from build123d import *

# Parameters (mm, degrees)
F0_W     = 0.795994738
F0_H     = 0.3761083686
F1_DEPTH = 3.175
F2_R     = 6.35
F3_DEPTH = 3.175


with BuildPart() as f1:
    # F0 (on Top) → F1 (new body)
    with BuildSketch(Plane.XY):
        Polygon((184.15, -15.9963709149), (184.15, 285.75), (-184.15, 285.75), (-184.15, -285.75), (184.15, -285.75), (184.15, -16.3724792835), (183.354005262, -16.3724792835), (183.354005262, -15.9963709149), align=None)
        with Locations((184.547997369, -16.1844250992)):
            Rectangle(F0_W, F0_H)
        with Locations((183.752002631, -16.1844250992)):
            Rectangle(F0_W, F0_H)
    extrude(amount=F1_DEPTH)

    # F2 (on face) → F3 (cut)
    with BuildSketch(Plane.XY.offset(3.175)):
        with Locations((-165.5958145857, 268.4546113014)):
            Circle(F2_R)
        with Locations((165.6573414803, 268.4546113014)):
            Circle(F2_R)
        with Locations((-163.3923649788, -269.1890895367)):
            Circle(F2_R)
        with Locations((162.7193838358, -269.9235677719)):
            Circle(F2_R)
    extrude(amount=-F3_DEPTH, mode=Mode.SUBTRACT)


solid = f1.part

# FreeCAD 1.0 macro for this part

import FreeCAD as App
import Part
import Sketcher

V = App.Vector
Q = App.Units.Quantity

doc = App.newDocument("Part")
body = doc.addObject("PartDesign::Body", "Body")

# Sketch on XY plane
sketch1 = doc.addObject("Sketcher::SketchObject", "Sketch")
body.addObject(sketch1)
sketch1.AttachmentSupport = (doc.XY_Plane, [""])
sketch1.MapMode = "FlatFace"
sketch1.addGeometry([
    Part.LineSegment(V(184.15, -16, 0), V(184.15, 285.75, 0)),  # 0
    Part.LineSegment(V(184.15, 285.75, 0), V(-184.15, 285.75, 0)),  # 1
    Part.LineSegment(V(-184.15, 285.75, 0), V(-184.15, -285.75, 0)),  # 2
    Part.LineSegment(V(-184.15, -285.75, 0), V(184.15, -285.75, 0)),  # 3
    Part.LineSegment(V(184.15, -285.75, 0), V(184.15, -16.37, 0)),  # 4
    Part.LineSegment(V(184.15, -16.37, 0), V(184.95, -16.37, 0)),  # 5
    Part.LineSegment(V(184.95, -16.37, 0), V(184.95, -16, 0)),  # 6
    Part.LineSegment(V(184.95, -16, 0), V(184.15, -16, 0)),  # 7
], False)
sketch1.addConstraint([
    Sketcher.Constraint("Coincident", 0, 2, 1, 1),
    Sketcher.Constraint("Coincident", 1, 2, 2, 1),
    Sketcher.Constraint("Coincident", 2, 2, 3, 1),
    Sketcher.Constraint("Coincident", 3, 2, 4, 1),
    Sketcher.Constraint("Coincident", 4, 2, 5, 1),
    Sketcher.Constraint("Coincident", 5, 2, 6, 1),
    Sketcher.Constraint("Coincident", 6, 2, 7, 1),
    Sketcher.Constraint("Coincident", 7, 2, 0, 1),
    Sketcher.Constraint("Vertical", 0),
    Sketcher.Constraint("Horizontal", 1),
    Sketcher.Constraint("Vertical", 2),
    Sketcher.Constraint("Horizontal", 3),
    Sketcher.Constraint("Vertical", 4),
    Sketcher.Constraint("Horizontal", 5),
    Sketcher.Constraint("Vertical", 6),
    Sketcher.Constraint("Horizontal", 7),
    Sketcher.Constraint("Symmetric", 0, 2, 2, 2, -1, 1),
    Sketcher.Constraint("Vertical", 0, 2, 3, 2),
    Sketcher.Constraint("DistanceX", 1, 2, 1, 1, Q("14.5 in")),
    Sketcher.Constraint("DistanceY", 2, 2, 2, 1, Q("22.5 in")),
    Sketcher.Constraint("DistanceY", 0, 1, 0, 2, 301.746371),
    Sketcher.Constraint("DistanceY", 4, 1, 4, 2, 269.377521),
    Sketcher.Constraint("DistanceX", 5, 1, 5, 2, 0.795995),
])
pad1 = doc.addObject("PartDesign::Pad", "Pad")
body.addObject(pad1)
pad1.Profile = sketch1
pad1.Length = Q("0.125 in")

# Sketch on XY plane
sketch2 = doc.addObject("Sketcher::SketchObject", "Sketch001")
body.addObject(sketch2)
sketch2.AttachmentSupport = (doc.XY_Plane, [""])
sketch2.MapMode = "FlatFace"
sketch2.AttachmentOffset = App.Placement(V(0, 0, 0.125 * 25.4), App.Rotation())
sketch2.addGeometry([
    Part.Circle(V(-166, 268, 0), V(0, 0, 1), 6),
    Part.Circle(V(166, 268, 0), V(0, 0, 1), 6),
    Part.Circle(V(-163, -269, 0), V(0, 0, 1), 6),
    Part.Circle(V(163, -270, 0), V(0, 0, 1), 6),
], False)
sketch2.addConstraint([
    Sketcher.Constraint("Equal", 0, 1),
    Sketcher.Constraint("Equal", 1, 2),
    Sketcher.Constraint("Equal", 2, 3),
    Sketcher.Constraint("Horizontal", 0, 3, 1, 3),
    Sketcher.Constraint("Diameter", 0, Q("0.5 in")),
    Sketcher.Constraint("DistanceY", 2, 3, 0, 3, 537.643701),
    Sketcher.Constraint("DistanceX", 0, 3, 3, 3, 328.315198),
    Sketcher.Constraint("DistanceY", -1, 1, 0, 3, 268.454611),
    Sketcher.Constraint("DistanceX", -1, 1, 1, 3, 165.657341),
    Sketcher.Constraint("DistanceX", 0, 3, 2, 3, 2.20345),
    Sketcher.Constraint("DistanceY", 3, 3, 2, 3, 0.734478),
    Sketcher.Constraint("DistanceX", 0, 3, -1, 1, 165.595815),
])
pocket1 = doc.addObject("PartDesign::Pocket", "Pocket")
body.addObject(pocket1)
pocket1.Profile = sketch2
pocket1.Length = Q("0.125 in")

doc.recompute()
